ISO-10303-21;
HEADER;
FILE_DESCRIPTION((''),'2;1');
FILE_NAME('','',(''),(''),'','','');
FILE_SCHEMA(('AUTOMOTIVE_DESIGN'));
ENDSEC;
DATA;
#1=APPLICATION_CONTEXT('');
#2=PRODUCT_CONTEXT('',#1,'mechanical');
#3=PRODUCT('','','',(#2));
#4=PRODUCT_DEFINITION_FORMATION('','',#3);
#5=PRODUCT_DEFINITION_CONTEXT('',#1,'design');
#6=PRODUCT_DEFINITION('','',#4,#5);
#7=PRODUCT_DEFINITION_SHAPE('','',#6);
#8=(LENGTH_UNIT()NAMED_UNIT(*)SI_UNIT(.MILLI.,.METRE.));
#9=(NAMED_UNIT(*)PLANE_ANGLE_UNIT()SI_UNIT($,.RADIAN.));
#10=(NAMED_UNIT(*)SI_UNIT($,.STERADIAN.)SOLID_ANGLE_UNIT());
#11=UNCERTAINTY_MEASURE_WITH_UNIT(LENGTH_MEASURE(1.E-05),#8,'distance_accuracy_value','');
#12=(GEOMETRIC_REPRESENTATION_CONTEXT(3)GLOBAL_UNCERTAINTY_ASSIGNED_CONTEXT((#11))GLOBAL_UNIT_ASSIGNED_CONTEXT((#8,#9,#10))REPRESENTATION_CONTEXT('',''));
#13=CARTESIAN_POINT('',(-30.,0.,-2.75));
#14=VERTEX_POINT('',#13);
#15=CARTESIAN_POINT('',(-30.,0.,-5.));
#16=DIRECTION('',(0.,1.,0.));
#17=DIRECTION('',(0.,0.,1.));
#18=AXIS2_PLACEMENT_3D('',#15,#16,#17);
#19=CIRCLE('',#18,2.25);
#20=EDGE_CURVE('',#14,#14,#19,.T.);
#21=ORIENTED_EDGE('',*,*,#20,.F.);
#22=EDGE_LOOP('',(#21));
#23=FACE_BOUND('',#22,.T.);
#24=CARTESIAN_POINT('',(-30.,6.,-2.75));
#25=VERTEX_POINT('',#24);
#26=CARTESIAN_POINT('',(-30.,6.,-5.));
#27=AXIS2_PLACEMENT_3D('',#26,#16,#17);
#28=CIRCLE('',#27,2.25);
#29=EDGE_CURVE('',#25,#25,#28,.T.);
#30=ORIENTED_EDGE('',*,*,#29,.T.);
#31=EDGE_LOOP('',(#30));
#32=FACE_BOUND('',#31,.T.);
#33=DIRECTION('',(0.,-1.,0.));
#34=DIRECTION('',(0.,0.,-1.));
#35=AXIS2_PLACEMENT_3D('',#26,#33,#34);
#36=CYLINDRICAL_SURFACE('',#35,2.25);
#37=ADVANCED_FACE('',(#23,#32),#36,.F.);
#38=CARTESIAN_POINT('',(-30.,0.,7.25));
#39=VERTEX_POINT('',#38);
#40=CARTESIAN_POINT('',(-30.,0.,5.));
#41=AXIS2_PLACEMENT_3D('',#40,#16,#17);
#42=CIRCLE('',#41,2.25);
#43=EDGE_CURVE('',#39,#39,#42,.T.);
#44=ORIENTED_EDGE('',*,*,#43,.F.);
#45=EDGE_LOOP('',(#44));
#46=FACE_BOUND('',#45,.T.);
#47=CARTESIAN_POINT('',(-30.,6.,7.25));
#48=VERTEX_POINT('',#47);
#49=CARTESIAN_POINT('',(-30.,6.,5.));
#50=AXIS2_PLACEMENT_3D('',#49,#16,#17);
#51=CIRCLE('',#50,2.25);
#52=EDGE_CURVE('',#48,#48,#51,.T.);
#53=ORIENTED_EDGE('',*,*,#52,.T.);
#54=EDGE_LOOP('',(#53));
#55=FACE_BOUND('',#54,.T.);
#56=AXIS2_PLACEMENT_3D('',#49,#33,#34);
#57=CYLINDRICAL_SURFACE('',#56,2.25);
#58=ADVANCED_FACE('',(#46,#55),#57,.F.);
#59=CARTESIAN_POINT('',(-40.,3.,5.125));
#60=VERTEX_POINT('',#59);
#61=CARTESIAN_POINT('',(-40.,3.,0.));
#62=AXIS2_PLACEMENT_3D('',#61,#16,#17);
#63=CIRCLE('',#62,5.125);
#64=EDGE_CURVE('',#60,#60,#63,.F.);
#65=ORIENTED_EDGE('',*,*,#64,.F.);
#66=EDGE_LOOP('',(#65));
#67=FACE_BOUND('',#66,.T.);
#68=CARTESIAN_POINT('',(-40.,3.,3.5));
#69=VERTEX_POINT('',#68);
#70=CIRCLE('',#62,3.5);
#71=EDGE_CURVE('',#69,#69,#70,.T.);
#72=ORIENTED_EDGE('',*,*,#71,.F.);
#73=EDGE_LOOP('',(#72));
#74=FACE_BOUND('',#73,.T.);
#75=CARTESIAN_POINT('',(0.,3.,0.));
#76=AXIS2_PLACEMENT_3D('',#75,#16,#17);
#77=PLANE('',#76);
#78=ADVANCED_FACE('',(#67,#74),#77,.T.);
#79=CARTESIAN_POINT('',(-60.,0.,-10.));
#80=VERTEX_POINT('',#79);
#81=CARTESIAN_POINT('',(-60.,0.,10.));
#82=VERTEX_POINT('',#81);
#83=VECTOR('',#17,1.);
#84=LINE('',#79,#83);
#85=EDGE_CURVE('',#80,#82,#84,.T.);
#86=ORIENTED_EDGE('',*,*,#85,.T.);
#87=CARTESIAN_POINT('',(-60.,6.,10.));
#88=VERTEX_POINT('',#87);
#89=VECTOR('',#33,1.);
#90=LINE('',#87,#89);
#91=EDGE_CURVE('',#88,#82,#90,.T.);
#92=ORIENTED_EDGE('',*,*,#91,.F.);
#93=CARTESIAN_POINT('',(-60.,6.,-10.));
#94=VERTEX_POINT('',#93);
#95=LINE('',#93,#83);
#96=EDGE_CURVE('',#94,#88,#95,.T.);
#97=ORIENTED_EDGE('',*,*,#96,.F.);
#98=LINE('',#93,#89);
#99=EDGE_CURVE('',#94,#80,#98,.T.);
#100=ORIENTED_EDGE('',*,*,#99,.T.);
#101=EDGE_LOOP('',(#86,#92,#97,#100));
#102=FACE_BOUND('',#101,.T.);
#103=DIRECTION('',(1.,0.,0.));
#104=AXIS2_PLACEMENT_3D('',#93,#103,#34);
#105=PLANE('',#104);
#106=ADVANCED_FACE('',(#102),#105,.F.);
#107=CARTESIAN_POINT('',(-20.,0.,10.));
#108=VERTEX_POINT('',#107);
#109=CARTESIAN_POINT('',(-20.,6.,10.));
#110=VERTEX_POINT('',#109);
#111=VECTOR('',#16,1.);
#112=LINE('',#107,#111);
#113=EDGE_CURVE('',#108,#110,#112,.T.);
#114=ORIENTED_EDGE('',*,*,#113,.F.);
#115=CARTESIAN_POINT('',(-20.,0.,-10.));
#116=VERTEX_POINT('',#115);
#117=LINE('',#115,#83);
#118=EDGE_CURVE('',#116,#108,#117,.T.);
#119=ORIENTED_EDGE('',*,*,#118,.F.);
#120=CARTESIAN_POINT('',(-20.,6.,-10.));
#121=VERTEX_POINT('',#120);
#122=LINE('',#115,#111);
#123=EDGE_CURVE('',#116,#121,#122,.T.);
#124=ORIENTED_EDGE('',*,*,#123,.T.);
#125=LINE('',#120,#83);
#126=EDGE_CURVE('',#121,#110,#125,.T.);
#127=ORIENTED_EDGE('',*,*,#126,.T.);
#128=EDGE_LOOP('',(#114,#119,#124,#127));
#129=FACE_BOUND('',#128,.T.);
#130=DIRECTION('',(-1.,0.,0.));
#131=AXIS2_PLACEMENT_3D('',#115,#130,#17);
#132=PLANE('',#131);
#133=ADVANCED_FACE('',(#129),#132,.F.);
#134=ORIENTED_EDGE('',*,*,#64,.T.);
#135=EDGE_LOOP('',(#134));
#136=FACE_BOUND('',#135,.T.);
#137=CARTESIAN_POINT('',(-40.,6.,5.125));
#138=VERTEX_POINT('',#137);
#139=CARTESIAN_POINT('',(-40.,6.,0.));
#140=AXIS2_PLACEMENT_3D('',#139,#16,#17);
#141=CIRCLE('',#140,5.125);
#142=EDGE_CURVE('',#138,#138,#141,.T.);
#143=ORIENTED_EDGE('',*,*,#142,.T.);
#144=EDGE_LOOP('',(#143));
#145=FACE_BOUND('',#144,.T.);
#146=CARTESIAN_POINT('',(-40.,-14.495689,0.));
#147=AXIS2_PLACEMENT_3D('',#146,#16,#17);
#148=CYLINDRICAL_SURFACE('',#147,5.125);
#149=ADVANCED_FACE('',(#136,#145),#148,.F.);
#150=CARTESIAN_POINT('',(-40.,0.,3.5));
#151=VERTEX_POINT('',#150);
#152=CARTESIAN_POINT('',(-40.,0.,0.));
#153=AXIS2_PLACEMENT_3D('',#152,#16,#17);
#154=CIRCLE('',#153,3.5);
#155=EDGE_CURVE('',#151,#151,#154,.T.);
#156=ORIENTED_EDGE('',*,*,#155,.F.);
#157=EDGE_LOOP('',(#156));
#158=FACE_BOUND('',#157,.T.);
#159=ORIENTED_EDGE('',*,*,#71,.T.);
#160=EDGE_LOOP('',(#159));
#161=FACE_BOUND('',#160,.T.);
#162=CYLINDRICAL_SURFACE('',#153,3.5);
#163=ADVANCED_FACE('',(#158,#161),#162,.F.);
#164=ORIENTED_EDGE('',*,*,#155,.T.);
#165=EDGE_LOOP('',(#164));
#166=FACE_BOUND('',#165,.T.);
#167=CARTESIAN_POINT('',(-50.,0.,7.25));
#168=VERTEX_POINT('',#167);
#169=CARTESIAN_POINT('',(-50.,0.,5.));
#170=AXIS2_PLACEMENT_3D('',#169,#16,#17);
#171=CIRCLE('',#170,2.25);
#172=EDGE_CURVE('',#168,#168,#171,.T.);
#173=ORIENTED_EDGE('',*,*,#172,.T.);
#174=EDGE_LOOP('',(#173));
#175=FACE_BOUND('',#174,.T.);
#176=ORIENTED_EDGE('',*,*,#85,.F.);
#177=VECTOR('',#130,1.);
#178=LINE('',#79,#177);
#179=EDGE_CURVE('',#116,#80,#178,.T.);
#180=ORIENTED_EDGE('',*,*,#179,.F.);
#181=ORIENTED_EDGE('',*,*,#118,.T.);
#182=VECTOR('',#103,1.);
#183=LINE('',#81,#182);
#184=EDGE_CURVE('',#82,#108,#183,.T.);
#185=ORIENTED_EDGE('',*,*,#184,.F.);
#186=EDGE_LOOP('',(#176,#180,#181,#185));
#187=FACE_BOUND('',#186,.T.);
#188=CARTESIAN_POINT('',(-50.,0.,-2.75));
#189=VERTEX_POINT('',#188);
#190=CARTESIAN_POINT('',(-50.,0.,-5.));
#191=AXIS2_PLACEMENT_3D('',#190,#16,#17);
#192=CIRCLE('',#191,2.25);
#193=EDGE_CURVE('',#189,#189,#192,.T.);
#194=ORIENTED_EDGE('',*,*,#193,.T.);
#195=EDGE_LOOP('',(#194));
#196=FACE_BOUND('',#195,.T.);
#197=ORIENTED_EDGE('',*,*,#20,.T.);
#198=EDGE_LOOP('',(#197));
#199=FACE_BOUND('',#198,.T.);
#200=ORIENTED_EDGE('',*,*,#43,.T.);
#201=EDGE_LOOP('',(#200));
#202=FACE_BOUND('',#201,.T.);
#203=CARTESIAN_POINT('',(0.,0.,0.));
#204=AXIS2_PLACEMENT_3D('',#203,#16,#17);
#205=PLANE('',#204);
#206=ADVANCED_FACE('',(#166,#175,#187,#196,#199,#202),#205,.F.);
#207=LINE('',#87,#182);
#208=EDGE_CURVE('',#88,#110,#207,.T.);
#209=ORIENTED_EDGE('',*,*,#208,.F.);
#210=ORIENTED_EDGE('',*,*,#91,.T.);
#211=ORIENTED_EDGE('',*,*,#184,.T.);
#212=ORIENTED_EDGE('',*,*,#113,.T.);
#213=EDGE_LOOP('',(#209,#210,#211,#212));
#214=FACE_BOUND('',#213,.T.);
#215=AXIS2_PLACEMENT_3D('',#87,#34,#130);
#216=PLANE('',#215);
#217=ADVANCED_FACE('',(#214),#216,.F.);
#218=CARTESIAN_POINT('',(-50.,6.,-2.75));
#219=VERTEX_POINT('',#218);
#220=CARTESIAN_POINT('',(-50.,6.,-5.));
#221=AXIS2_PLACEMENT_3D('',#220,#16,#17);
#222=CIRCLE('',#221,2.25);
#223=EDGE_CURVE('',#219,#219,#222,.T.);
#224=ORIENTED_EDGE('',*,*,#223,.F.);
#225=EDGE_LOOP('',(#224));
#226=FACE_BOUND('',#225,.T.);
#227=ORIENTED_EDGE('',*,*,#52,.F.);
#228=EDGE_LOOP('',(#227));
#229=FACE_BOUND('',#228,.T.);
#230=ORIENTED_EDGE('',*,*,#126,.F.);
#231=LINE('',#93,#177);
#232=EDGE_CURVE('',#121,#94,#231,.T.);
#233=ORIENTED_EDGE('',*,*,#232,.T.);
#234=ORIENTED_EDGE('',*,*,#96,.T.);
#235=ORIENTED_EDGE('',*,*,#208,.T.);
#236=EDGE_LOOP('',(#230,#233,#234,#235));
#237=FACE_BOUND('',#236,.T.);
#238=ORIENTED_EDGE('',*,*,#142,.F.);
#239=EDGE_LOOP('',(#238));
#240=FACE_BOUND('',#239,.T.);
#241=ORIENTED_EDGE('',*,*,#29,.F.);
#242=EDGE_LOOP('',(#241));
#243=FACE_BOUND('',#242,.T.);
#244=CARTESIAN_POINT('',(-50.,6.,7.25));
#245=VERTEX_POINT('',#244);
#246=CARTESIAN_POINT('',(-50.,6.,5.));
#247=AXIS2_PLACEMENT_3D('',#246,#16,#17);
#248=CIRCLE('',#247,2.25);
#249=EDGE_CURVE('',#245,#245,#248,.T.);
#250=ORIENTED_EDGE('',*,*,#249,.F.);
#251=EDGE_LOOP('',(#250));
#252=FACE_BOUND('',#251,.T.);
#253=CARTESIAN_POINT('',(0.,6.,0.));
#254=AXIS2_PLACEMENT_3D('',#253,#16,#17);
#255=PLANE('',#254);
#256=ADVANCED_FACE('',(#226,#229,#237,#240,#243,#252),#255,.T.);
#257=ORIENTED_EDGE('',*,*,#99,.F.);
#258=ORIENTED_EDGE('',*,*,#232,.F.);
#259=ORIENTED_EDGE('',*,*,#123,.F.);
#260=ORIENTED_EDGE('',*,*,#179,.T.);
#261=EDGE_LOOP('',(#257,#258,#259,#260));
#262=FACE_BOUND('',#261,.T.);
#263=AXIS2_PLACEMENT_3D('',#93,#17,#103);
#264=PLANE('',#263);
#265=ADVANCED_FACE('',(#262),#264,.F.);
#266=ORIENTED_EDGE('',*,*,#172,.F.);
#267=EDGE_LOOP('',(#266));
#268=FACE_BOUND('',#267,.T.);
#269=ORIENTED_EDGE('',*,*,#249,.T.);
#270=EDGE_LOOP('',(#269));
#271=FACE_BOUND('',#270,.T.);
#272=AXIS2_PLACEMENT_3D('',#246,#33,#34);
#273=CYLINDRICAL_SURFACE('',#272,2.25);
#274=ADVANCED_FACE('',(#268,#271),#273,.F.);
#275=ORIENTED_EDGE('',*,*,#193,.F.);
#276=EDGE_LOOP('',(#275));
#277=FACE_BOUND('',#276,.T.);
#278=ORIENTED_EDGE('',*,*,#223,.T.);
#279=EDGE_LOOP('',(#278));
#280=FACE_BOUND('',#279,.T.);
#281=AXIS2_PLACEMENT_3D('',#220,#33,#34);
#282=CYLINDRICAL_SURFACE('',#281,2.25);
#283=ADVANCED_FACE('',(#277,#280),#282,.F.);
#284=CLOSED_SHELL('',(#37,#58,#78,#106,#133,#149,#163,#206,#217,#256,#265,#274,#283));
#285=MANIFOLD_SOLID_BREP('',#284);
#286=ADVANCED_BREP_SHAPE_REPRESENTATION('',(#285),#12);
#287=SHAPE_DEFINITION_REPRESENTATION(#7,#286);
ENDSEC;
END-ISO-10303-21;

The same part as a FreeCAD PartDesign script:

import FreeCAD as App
import Part
import Sketcher
from FreeCAD import Vector


def add_polygon(sketch, points):
    """Adds a closed chain of lines whose ends are joined by coincident constraints."""
    first, n = sketch.GeometryCount, len(points)
    for a, b in zip(points, points[1:] + points[:1]):
        sketch.addGeometry(Part.LineSegment(App.Vector(*a, 0), App.Vector(*b, 0)), False)
    for i in range(n):
        sketch.addConstraint(Sketcher.Constraint("Coincident", first + i, 2, first + (i + 1) % n, 1))

doc = App.newDocument("Part")
params = doc.addObject("Spreadsheet::Sheet", "Params")
for row, (alias, value) in enumerate([
    ("sketch1_diameter", "4.5 mm"),
    ("sketch1_width", "120 mm"),
    ("sketch1_height", "20 mm"),
    ("pad1_length", "6 mm"),
    ("sketch2_width", "80 mm"),
    ("sketch2_height", "20 mm"),
    ("sketch3_diameter", "10.25 mm"),
    ("pocket2_length", "3 mm"),
    ("sketch4_diameter", "7 mm"),
], start=1):
    params.set(f"A{row}", alias)
    params.set(f"B{row}", "=" + value)
    params.setAlias(f"B{row}", alias)

body = doc.addObject("PartDesign::Body", "Body")

# Sketch on XZ plane
sketch1 = body.newObject("Sketcher::SketchObject", "Sketch")
sketch1.AttachmentSupport = (doc.getObject("XZ_Plane"), [""])
sketch1.MapMode = "FlatFace"
add_polygon(sketch1, [(-60, -10), (-60, 10), (60, 10), (60, -10)])  # lines 0-3
sketch1.addGeometry(Part.Circle(Vector(-50, 5, 0), Vector(0, 0, 1), 2.2), False)  # 4
sketch1.addGeometry(Part.Circle(Vector(-30, 5, 0), Vector(0, 0, 1), 2.2), False)  # 5
sketch1.addGeometry(Part.Circle(Vector(10, 5, 0), Vector(0, 0, 1), 2.2), False)  # 6
sketch1.addGeometry(Part.Circle(Vector(50, 5, 0), Vector(0, 0, 1), 2.2), False)  # 7
sketch1.addGeometry(Part.Circle(Vector(-50, -5, 0), Vector(0, 0, 1), 2.2), False)  # 8
sketch1.addGeometry(Part.Circle(Vector(-30, -5, 0), Vector(0, 0, 1), 2.2), False)  # 9
sketch1.addGeometry(Part.Circle(Vector(-10, -5, 0), Vector(0, 0, 1), 2.2), False)  # 10
sketch1.addGeometry(Part.Circle(Vector(30, -5, 0), Vector(0, 0, 1), 2.2), False)  # 11
sketch1.addConstraint([
    Sketcher.Constraint("Vertical", 0),
    Sketcher.Constraint("Horizontal", 1),
    Sketcher.Constraint("Vertical", 2),
    Sketcher.Constraint("Horizontal", 3),
    Sketcher.Constraint("Equal", 4, 5),
    Sketcher.Constraint("Equal", 5, 6),
    Sketcher.Constraint("Equal", 6, 7),
    Sketcher.Constraint("Equal", 7, 8),
    Sketcher.Constraint("Equal", 8, 9),
    Sketcher.Constraint("Equal", 9, 10),
    Sketcher.Constraint("Equal", 10, 11),
    Sketcher.Constraint("Symmetric", 7, 3, 8, 3, -1, 1),
    Sketcher.Constraint("Symmetric", 6, 3, 10, 3, -1, 1),
    Sketcher.Constraint("Symmetric", 5, 3, 11, 3, -1, 1),
    Sketcher.Constraint("Symmetric", 0, 2, 2, 2, -1, 1),
    Sketcher.Constraint("Symmetric", 4, 3, 7, 3, -2),
    Sketcher.Constraint("Symmetric", 9, 3, 11, 3, -2),
    Sketcher.Constraint("Horizontal", 4, 3, 5, 3),
    Sketcher.Constraint("Horizontal", 5, 3, 6, 3),
    Sketcher.Constraint("Diameter", 4, 4.5),
    Sketcher.Constraint("DistanceX", 1, 1, 1, 2, 120.0),
    Sketcher.Constraint("DistanceY", 0, 1, 0, 2, 20.0),
    Sketcher.Constraint("DistanceX", 4, 3, -1, 1, 50.0),
    Sketcher.Constraint("DistanceY", -1, 1, 4, 3, 5.0),
    Sketcher.Constraint("DistanceX", 5, 3, -1, 1, 30.0),
    Sketcher.Constraint("DistanceX", -1, 1, 6, 3, 10.0),
])
sketch1.setExpression("Constraints[23]", "Params.sketch1_diameter")
sketch1.setExpression("Constraints[24]", "Params.sketch1_width")
sketch1.setExpression("Constraints[25]", "Params.sketch1_height")
pad1 = body.newObject("PartDesign::Pad", "Pad")
pad1.Profile = sketch1
pad1.setExpression("Length", "Params.pad1_length")
pad1.Reversed = True

# Sketch on XZ plane
sketch2 = body.newObject("Sketcher::SketchObject", "Sketch001")
sketch2.AttachmentSupport = (doc.getObject("XZ_Plane"), [""])
sketch2.MapMode = "FlatFace"
sketch2.AttachmentOffset = App.Placement(Vector(0, 0, -6), App.Rotation())
add_polygon(sketch2, [(-20, -10), (-20, 10), (60, 10), (60, -10)])  # lines 0-3
sketch2.addConstraint([
    Sketcher.Constraint("Vertical", 0),
    Sketcher.Constraint("Horizontal", 1),
    Sketcher.Constraint("Vertical", 2),
    Sketcher.Constraint("Horizontal", 3),
    Sketcher.Constraint("DistanceX", 1, 1, 1, 2, 80.0),
    Sketcher.Constraint("DistanceY", 0, 1, 0, 2, 20.0),
    Sketcher.Constraint("DistanceX", 0, 2, -1, 1, 20.0),
    Sketcher.Constraint("DistanceY", -1, 1, 0, 2, 10.0),
])
sketch2.setExpression("Constraints[8]", "Params.sketch2_width")
sketch2.setExpression("Constraints[9]", "Params.sketch2_height")
pocket1 = body.newObject("PartDesign::Pocket", "Pocket")
pocket1.Profile = sketch2
pocket1.Type = "ThroughAll"
pocket1.Reversed = True

# Sketch on XZ plane
sketch3 = body.newObject("Sketcher::SketchObject", "Sketch002")
sketch3.AttachmentSupport = (doc.getObject("XZ_Plane"), [""])
sketch3.MapMode = "FlatFace"
sketch3.AttachmentOffset = App.Placement(Vector(0, 0, -6), App.Rotation())
sketch3.addGeometry(Part.Circle(Vector(-40, 0, 0), Vector(0, 0, 1), 5), False)
sketch3.addConstraint([
    Sketcher.Constraint("PointOnObject", 0, 3, -1),
    Sketcher.Constraint("Diameter", 0, 10.25),
    Sketcher.Constraint("DistanceX", 0, 3, -1, 1, 40.0),
])
sketch3.setExpression("Constraints[1]", "Params.sketch3_diameter")
pocket2 = body.newObject("PartDesign::Pocket", "Pocket001")
pocket2.Profile = sketch3
pocket2.setExpression("Length", "Params.pocket2_length")
pocket2.Reversed = True

# Sketch on XZ plane
sketch4 = body.newObject("Sketcher::SketchObject", "Sketch003")
sketch4.AttachmentSupport = (doc.getObject("XZ_Plane"), [""])
sketch4.MapMode = "FlatFace"
sketch4.AttachmentOffset = App.Placement(Vector(0, 0, -3), App.Rotation())
sketch4.addGeometry(Part.Circle(Vector(-40, 0, 0), Vector(0, 0, 1), 3.5), False)
sketch4.addConstraint([
    Sketcher.Constraint("PointOnObject", 0, 3, -1),
    Sketcher.Constraint("Diameter", 0, 7.0),
    Sketcher.Constraint("DistanceX", 0, 3, -1, 1, 40.0),
])
sketch4.setExpression("Constraints[1]", "Params.sketch4_diameter")
pocket3 = body.newObject("PartDesign::Pocket", "Pocket002")
pocket3.Profile = sketch4
pocket3.Type = "ThroughAll"
pocket3.Reversed = True

doc.recompute()
